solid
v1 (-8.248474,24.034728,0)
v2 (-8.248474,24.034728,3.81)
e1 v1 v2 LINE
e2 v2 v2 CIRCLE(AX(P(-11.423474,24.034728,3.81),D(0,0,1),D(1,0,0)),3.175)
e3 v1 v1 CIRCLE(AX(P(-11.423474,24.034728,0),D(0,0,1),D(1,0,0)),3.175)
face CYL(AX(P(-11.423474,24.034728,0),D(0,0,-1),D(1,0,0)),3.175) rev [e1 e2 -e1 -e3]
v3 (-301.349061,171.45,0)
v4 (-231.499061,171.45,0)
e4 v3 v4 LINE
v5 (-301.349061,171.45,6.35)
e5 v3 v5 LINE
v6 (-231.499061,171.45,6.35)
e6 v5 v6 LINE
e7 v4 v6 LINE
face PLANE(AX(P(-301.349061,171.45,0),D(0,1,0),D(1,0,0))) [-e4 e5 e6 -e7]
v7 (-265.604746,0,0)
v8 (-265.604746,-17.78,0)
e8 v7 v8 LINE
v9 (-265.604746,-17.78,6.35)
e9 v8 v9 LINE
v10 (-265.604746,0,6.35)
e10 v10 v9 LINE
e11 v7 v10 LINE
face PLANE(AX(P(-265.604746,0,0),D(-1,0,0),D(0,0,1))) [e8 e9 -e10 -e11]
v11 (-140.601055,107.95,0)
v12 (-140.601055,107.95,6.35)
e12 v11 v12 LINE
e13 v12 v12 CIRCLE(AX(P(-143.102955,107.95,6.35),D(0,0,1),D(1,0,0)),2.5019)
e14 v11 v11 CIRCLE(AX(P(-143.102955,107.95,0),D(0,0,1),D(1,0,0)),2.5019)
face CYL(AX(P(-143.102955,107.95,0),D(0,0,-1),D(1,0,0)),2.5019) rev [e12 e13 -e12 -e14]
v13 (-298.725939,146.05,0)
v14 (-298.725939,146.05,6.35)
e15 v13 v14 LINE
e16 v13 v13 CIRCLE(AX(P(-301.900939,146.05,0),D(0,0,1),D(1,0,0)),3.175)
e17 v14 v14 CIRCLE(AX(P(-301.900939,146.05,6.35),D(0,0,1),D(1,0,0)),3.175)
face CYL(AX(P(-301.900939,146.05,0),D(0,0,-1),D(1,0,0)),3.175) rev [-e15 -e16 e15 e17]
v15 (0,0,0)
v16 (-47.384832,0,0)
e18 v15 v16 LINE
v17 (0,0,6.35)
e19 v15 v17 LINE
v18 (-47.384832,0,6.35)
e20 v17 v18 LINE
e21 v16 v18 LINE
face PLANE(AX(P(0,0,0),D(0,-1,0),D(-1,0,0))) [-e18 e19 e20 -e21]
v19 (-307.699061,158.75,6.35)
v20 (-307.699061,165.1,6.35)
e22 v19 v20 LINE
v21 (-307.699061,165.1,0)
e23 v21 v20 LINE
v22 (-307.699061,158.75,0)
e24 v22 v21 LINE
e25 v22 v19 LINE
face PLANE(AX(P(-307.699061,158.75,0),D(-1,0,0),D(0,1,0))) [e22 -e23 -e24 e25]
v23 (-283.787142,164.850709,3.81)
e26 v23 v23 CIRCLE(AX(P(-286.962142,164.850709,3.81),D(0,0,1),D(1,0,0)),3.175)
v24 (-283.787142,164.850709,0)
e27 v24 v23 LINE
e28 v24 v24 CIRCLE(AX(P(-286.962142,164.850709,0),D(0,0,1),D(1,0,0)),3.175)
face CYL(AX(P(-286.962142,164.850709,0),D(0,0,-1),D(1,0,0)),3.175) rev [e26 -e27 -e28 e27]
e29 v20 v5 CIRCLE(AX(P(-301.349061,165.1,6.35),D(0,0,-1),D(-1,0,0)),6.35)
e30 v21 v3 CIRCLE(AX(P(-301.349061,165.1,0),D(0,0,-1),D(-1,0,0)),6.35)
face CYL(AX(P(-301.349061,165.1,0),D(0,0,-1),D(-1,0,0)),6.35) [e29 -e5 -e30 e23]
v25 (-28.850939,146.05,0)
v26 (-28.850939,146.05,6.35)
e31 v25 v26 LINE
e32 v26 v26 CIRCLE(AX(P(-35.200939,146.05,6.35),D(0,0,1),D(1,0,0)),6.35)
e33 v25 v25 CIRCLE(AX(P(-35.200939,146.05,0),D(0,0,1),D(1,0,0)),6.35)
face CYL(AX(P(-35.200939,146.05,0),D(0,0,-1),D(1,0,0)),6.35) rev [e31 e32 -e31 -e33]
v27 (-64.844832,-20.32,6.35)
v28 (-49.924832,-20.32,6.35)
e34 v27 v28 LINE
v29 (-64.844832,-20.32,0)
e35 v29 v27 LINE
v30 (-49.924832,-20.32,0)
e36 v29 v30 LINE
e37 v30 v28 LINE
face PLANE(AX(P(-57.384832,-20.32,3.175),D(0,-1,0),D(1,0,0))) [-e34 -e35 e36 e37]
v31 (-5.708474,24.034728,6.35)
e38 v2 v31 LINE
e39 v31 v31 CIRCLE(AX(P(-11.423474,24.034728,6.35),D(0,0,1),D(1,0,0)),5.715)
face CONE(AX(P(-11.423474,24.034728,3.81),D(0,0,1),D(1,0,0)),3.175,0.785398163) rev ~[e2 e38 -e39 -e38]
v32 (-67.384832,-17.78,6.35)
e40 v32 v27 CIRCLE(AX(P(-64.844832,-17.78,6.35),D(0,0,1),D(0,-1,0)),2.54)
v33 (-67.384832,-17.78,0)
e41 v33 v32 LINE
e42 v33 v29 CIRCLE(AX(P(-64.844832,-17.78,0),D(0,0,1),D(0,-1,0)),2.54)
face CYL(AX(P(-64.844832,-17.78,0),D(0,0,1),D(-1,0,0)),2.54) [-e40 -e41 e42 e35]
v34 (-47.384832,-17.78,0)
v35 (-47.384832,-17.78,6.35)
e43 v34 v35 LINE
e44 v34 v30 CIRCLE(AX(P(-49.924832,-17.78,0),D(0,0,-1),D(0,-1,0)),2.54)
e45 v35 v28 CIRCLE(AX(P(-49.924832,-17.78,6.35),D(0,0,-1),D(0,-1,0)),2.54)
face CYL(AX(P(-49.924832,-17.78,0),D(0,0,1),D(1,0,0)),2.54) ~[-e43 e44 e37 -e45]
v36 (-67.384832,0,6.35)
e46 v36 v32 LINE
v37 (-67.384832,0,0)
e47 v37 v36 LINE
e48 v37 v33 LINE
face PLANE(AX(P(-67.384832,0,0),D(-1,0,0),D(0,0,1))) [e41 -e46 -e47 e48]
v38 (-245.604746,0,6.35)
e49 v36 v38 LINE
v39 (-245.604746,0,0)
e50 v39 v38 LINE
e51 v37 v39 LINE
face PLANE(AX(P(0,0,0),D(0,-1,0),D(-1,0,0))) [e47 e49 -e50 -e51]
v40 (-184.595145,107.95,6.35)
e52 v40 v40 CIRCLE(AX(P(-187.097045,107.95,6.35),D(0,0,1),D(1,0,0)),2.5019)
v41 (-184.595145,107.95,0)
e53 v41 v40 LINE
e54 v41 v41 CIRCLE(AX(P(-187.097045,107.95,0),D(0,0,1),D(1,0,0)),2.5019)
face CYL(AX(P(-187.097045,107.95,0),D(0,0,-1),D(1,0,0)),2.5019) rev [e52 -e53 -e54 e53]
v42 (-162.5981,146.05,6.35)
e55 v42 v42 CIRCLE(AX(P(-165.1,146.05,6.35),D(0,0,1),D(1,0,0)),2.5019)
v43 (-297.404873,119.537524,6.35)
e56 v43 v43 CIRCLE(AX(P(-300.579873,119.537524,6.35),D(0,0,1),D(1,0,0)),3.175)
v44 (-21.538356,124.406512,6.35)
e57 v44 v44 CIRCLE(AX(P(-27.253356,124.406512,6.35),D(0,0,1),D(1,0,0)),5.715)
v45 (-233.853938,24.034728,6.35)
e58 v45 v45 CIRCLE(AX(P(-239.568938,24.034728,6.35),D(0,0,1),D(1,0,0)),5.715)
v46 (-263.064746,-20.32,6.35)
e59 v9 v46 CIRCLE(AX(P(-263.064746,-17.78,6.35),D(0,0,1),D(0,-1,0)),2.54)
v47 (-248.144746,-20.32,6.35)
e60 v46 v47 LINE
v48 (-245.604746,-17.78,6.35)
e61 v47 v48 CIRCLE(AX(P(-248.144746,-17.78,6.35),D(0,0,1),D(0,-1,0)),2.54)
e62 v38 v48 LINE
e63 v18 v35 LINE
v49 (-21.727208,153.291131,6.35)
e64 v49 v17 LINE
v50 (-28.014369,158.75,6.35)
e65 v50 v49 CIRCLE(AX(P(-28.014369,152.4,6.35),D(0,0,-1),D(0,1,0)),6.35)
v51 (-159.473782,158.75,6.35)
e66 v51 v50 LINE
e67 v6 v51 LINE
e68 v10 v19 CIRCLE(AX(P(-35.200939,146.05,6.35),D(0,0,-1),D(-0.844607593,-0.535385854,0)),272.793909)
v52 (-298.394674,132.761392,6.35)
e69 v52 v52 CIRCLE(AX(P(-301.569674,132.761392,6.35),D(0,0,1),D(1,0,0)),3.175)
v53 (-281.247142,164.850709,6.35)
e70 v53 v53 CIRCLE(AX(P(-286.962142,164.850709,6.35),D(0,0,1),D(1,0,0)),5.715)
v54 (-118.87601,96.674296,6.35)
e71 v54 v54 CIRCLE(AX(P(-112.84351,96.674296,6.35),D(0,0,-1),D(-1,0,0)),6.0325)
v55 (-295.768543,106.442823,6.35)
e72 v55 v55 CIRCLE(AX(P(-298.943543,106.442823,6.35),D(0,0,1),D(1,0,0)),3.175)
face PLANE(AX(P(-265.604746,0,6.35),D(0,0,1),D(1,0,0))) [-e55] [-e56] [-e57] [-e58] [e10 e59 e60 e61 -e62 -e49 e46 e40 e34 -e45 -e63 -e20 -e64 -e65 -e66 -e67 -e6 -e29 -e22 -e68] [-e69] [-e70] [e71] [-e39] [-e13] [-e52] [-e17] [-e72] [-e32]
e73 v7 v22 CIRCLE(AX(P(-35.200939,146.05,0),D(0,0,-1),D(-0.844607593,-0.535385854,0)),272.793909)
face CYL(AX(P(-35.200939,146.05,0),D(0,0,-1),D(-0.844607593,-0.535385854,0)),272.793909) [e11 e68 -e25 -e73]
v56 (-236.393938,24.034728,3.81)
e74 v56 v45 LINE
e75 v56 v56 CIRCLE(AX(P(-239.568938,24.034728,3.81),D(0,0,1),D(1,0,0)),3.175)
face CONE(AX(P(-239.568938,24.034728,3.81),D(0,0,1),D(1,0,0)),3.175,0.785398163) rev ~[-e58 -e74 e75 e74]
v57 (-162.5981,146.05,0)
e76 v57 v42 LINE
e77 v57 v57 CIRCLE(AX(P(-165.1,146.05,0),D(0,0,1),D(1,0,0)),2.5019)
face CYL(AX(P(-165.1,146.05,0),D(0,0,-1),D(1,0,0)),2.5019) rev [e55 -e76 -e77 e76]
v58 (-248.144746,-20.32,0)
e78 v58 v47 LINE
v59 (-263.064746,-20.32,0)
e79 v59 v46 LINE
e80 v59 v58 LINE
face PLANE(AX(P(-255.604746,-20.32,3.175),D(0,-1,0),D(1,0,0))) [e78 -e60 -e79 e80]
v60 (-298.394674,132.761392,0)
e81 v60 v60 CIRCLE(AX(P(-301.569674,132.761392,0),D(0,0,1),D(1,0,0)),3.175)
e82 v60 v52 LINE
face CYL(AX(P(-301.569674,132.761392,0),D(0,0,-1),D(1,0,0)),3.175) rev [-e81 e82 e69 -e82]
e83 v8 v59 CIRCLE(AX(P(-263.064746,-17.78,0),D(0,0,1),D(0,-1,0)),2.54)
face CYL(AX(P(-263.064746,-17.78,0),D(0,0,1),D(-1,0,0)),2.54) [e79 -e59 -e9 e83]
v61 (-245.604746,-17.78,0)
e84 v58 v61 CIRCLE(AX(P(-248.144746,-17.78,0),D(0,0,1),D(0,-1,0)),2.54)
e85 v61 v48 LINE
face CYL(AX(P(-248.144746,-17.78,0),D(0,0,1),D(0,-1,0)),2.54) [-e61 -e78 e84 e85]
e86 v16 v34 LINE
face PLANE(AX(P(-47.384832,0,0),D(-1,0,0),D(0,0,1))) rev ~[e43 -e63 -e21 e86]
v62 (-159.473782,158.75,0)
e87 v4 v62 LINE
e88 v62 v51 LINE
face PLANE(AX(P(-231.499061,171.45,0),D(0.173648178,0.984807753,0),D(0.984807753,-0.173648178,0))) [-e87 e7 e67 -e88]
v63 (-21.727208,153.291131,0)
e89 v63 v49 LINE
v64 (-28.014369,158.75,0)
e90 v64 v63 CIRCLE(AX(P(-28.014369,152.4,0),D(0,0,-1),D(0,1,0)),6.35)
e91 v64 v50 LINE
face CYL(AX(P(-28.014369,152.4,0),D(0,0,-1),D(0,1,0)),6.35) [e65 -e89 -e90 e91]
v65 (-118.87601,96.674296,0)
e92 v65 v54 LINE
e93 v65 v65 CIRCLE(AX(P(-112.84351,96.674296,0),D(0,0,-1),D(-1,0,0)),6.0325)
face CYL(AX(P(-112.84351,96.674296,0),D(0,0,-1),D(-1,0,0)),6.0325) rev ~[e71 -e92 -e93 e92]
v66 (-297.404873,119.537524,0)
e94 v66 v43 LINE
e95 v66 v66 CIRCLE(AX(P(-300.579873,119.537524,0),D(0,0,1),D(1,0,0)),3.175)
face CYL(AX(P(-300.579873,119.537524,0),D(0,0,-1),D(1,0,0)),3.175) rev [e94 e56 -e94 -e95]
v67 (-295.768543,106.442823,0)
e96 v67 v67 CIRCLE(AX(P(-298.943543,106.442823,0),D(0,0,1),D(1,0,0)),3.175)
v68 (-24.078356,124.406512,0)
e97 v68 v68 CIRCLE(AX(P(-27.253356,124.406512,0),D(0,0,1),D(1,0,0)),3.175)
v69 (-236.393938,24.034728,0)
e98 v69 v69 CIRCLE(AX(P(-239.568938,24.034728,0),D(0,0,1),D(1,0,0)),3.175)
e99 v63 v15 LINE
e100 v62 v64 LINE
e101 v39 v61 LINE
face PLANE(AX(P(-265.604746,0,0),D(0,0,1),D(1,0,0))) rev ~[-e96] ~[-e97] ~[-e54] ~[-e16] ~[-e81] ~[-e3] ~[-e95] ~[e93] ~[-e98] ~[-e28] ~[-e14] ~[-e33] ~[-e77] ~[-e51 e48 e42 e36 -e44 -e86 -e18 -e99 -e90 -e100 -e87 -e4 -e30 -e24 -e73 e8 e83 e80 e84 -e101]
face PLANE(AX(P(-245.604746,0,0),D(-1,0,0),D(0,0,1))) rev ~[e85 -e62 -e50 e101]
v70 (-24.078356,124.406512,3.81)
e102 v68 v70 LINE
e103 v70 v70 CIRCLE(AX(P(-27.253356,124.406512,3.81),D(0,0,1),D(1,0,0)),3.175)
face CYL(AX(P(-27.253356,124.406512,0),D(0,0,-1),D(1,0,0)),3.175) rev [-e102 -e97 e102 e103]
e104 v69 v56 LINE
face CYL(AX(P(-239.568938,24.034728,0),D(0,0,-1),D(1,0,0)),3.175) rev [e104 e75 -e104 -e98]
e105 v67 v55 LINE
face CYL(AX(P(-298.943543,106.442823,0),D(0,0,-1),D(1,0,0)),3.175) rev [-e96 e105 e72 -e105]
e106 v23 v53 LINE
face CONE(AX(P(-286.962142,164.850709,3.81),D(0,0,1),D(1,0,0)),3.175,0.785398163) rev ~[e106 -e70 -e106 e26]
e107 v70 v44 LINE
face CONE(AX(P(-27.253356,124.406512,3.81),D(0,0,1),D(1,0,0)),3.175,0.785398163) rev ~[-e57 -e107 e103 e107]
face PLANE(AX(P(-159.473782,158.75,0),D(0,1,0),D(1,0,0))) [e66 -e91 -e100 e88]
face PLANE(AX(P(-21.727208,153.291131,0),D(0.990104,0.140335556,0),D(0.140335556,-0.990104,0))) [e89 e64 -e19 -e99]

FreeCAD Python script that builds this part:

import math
import FreeCAD as App
import Part
import Sketcher
Q = App.Units.Quantity


def edges_at(feature, points):
    """Names of the edges that pass closest to the given points."""
    edges = feature.Shape.Edges
    near = lambda p: min(range(len(edges)), key=lambda i: edges[i].distToShape(Part.Vertex(*p))[0])
    return sorted({f"Edge{near(p) + 1}" for p in points})


def add_polygon(sketch, points):
    """Adds a closed chain of lines whose ends are joined by coincident constraints."""
    first, n = sketch.GeometryCount, len(points)
    for a, b in zip(points, points[1:] + points[:1]):
        sketch.addGeometry(Part.LineSegment(App.Vector(*a, 0), App.Vector(*b, 0)), False)
    for i in range(n):
        sketch.addConstraint(Sketcher.Constraint("Coincident", first + i, 2, first + (i + 1) % n, 1))

doc = App.newDocument("Part")
body = doc.addObject("PartDesign::Body", "Body")

# Sketch on XY plane
sketch1 = doc.addObject("Sketcher::SketchObject", "Sketch")
body.addObject(sketch1)
sketch1.AttachmentSupport = (doc.XY_Plane, [""])
sketch1.MapMode = "FlatFace"
sketch1.addGeometry(Part.LineSegment(App.Vector(-265.6, 0, 0), App.Vector(0, 0, 0)), False)
sketch1.addGeometry(Part.LineSegment(App.Vector(0, 0, 0), App.Vector(-21.7, 153.3, 0)), False)
sketch1.addGeometry(Part.ArcOfCircle(Part.Circle(App.Vector(-28, 152.4, 0), App.Vector(0, 0, 1), 6.4), math.radians(8), math.radians(90)), False)
sketch1.addGeometry(Part.LineSegment(App.Vector(-28, 158.8, 0), App.Vector(-159.5, 158.8, 0)), False)
sketch1.addGeometry(Part.LineSegment(App.Vector(-159.5, 158.8, 0), App.Vector(-231.5, 171.4, 0)), False)
sketch1.addGeometry(Part.LineSegment(App.Vector(-231.5, 171.4, 0), App.Vector(-301.3, 171.4, 0)), False)
sketch1.addGeometry(Part.ArcOfCircle(Part.Circle(App.Vector(-301.3, 165.1, 0), App.Vector(0, 0, 1), 6.3), math.radians(90), math.radians(180)), False)
sketch1.addGeometry(Part.LineSegment(App.Vector(-307.7, 165.1, 0), App.Vector(-307.7, 158.8, 0)), False)
sketch1.addGeometry(Part.ArcOfCircle(Part.Circle(App.Vector(-35.2, 146.1, 0), App.Vector(0, 0, 1), 272.8), math.radians(177), math.radians(212)), False)
sketch1.addGeometry(Part.Circle(App.Vector(-11.4, 24, 0), App.Vector(0, 0, 1), 3.2), False)
sketch1.addGeometry(Part.Circle(App.Vector(-239.6, 24, 0), App.Vector(0, 0, 1), 3.2), False)
sketch1.addGeometry(Part.Circle(App.Vector(-27.3, 124.4, 0), App.Vector(0, 0, 1), 3.2), False)
sketch1.addGeometry(Part.Circle(App.Vector(-143.1, 108, 0), App.Vector(0, 0, 1), 2.5), False)
sketch1.addGeometry(Part.Circle(App.Vector(-35.2, 146.1, 0), App.Vector(0, 0, 1), 6.3), False)
sketch1.addGeometry(Part.Circle(App.Vector(-187.1, 108, 0), App.Vector(0, 0, 1), 2.5), False)
sketch1.addGeometry(Part.Circle(App.Vector(-298.9, 106.4, 0), App.Vector(0, 0, 1), 3.2), False)
sketch1.addGeometry(Part.Circle(App.Vector(-300.6, 119.5, 0), App.Vector(0, 0, 1), 3.2), False)
sketch1.addGeometry(Part.Circle(App.Vector(-165.1, 146.1, 0), App.Vector(0, 0, 1), 2.5), False)
sketch1.addGeometry(Part.Circle(App.Vector(-301.6, 132.8, 0), App.Vector(0, 0, 1), 3.2), False)
sketch1.addGeometry(Part.Circle(App.Vector(-301.9, 146.1, 0), App.Vector(0, 0, 1), 3.2), False)
sketch1.addGeometry(Part.Circle(App.Vector(-287, 164.9, 0), App.Vector(0, 0, 1), 3.2), False)
sketch1.addConstraint(Sketcher.Constraint("Coincident", 0, 2, 1, 1))
sketch1.addConstraint(Sketcher.Constraint("Tangent", 1, 2, 2, 1))
sketch1.addConstraint(Sketcher.Constraint("Tangent", 2, 2, 3, 1))
sketch1.addConstraint(Sketcher.Constraint("Coincident", 3, 2, 4, 1))
sketch1.addConstraint(Sketcher.Constraint("Coincident", 4, 2, 5, 1))
sketch1.addConstraint(Sketcher.Constraint("Tangent", 5, 2, 6, 1))
sketch1.addConstraint(Sketcher.Constraint("Tangent", 6, 2, 7, 1))
sketch1.addConstraint(Sketcher.Constraint("Coincident", 7, 2, 8, 1))
sketch1.addConstraint(Sketcher.Constraint("Coincident", 8, 2, 0, 1))
sketch1.addConstraint(Sketcher.Constraint("Horizontal", 0))
sketch1.addConstraint(Sketcher.Constraint("Horizontal", 3))
sketch1.addConstraint(Sketcher.Constraint("Horizontal", 5))
sketch1.addConstraint(Sketcher.Constraint("Vertical", 7))
sketch1.addConstraint(Sketcher.Constraint("Coincident", 0, 2, -1, 1))
sketch1.addConstraint(Sketcher.Constraint("Coincident", 13, 3, 8, 3))
sketch1.addConstraint(Sketcher.Constraint("Equal", 2, 6))
sketch1.addConstraint(Sketcher.Constraint("Equal", 9, 10))
sketch1.addConstraint(Sketcher.Constraint("Equal", 10, 11))
sketch1.addConstraint(Sketcher.Constraint("Equal", 6, 13))
sketch1.addConstraint(Sketcher.Constraint("Equal", 12, 14))
sketch1.addConstraint(Sketcher.Constraint("Equal", 11, 15))
sketch1.addConstraint(Sketcher.Constraint("Equal", 15, 16))
sketch1.addConstraint(Sketcher.Constraint("Equal", 14, 17))
sketch1.addConstraint(Sketcher.Constraint("Equal", 16, 18))
sketch1.addConstraint(Sketcher.Constraint("Equal", 18, 19))
sketch1.addConstraint(Sketcher.Constraint("Equal", 19, 20))
sketch1.addConstraint(Sketcher.Constraint("Horizontal", 9, 3, 10, 3))
sketch1.addConstraint(Sketcher.Constraint("Horizontal", 12, 3, 14, 3))
sketch1.addConstraint(Sketcher.Constraint("Horizontal", 13, 3, 17, 3))
sketch1.addConstraint(Sketcher.Constraint("Horizontal", 17, 3, 19, 3))
sketch1.addConstraint(Sketcher.Constraint("Horizontal", 3, 2, 7, 2))
sketch1.addConstraint(Sketcher.Constraint("Diameter", 13, Q("0.5 in")))
sketch1.addConstraint(Sketcher.Constraint("Diameter", 9, Q("0.25 in")))
sketch1.addConstraint(Sketcher.Constraint("Diameter", 12, Q("0.197 in")))
sketch1.addConstraint(Sketcher.Constraint("DistanceY", -1, 1, 2, 3, Q("6 in")))
sketch1.addConstraint(Sketcher.Constraint("Angle", 4, Q("170 deg")))
sketch1.addConstraint(Sketcher.Constraint("DistanceY", 12, 3, 3, 2, Q("2 in")))
sketch1.addConstraint(Sketcher.Constraint("DistanceY", 17, 3, 4, 2, Q("1 in")))
sketch1.addConstraint(Sketcher.Constraint("DistanceX", 5, 2, 5, 1, Q("2.75 in")))
sketch1.addConstraint(Sketcher.Constraint("DistanceY", 7, 2, 7, 1, Q("0.25 in")))
sketch1.addConstraint(Sketcher.Constraint("DistanceX", 17, 3, -1, 1, Q("6.5 in")))
sketch1.addConstraint(Sketcher.Constraint("Radius", 8, Q("272.793909 mm")))
sketch1.addConstraint(Sketcher.Constraint("DistanceX", 10, 3, 8, 3, Q("204.367999 mm")))
sketch1.addConstraint(Sketcher.Constraint("DistanceX", 12, 3, 11, 3, Q("115.849599 mm")))
sketch1.addConstraint(Sketcher.Constraint("DistanceX", 15, 3, 14, 3, Q("111.846498 mm")))
sketch1.addConstraint(Sketcher.Constraint("DistanceY", 15, 3, 16, 3, Q("13.094701 mm")))
sketch1.addConstraint(Sketcher.Constraint("DistanceX", 18, 3, 16, 3, Q("0.989801 mm")))
sketch1.addConstraint(Sketcher.Constraint("DistanceX", 15, 3, 20, 3, Q("11.981401 mm")))
sketch1.addConstraint(Sketcher.Constraint("DistanceX", 8, 2, 14, 3, Q("78.5077 mm")))
sketch1.addConstraint(Sketcher.Constraint("Distance", 1, Q("154.823262 mm")))
sketch1.addConstraint(Sketcher.Constraint("DistanceX", 0, 1, 0, 2, Q("265.604746 mm")))
sketch1.addConstraint(Sketcher.Constraint("DistanceY", -1, 1, 9, 3, Q("24.034728 mm")))
sketch1.addConstraint(Sketcher.Constraint("DistanceY", -1, 1, 11, 3, Q("124.406512 mm")))
sketch1.addConstraint(Sketcher.Constraint("DistanceY", -1, 1, 18, 3, Q("132.761392 mm")))
sketch1.addConstraint(Sketcher.Constraint("DistanceX", 19, 3, -1, 1, Q("301.900939 mm")))
sketch1.addConstraint(Sketcher.Constraint("DistanceY", -1, 1, 20, 3, Q("164.850709 mm")))
sketch1.addConstraint(Sketcher.Constraint("DistanceX", 10, 3, 11, 3, Q("212.315581 mm")))
sketch1.addConstraint(Sketcher.Constraint("DistanceX", 12, 3, 9, 3, Q("131.679481 mm")))
sketch1.addConstraint(Sketcher.Constraint("DistanceX", 16, 3, 15, 3, Q("1.636329 mm")))
sketch1.addConstraint(Sketcher.Constraint("DistanceY", 15, 3, 18, 3, Q("26.318569 mm")))
pad1 = doc.addObject("PartDesign::Pad", "Pad")
body.addObject(pad1)
pad1.Profile = sketch1
pad1.Length = Q("0.25 in")
doc.recompute()

chamfer = doc.addObject("PartDesign::Chamfer", "Chamfer")
body.addObject(chamfer)
chamfer.Base = (pad1, edges_at(pad1, [
    (-14.598, 24.035, 6.35),
    (-30.428, 124.407, 6.35),
    (-242.744, 24.035, 6.35),
    (-290.137, 164.851, 6.35),
]))
chamfer.Size = Q("0.1 in")

# Sketch on XY plane
sketch2 = doc.addObject("Sketcher::SketchObject", "Sketch001")
body.addObject(sketch2)
sketch2.AttachmentSupport = (doc.XY_Plane, [""])
sketch2.MapMode = "FlatFace"
sketch2.addGeometry(Part.Circle(App.Vector(-113, 97, 0), App.Vector(0, 0, 1), 6), False)
sketch2.addConstraint(Sketcher.Constraint("Diameter", 0, Q("0.475 in")))
sketch2.addConstraint(Sketcher.Constraint("DistanceX", 0, 3, -1, 1, Q("112.84351 mm")))
sketch2.addConstraint(Sketcher.Constraint("DistanceY", -1, 1, 0, 3, Q("96.674296 mm")))
pocket1 = doc.addObject("PartDesign::Pocket", "Pocket")
body.addObject(pocket1)
pocket1.Profile = sketch2
pocket1.Length = Q("1.71 in")
pocket1.Reversed = True

# Sketch on XZ plane
sketch3 = doc.addObject("Sketcher::SketchObject", "Sketch002")
body.addObject(sketch3)
sketch3.AttachmentSupport = (doc.XZ_Plane, [""])
sketch3.MapMode = "FlatFace"
add_polygon(sketch3, [(-266, 6), (-266, 0), (-246, 0), (-246, 6)])  # lines 0-3
add_polygon(sketch3, [(-67, 6), (-67, 0), (-47, 0), (-47, 6)])  # lines 4-7
sketch3.addConstraint(Sketcher.Constraint("Vertical", 0))
sketch3.addConstraint(Sketcher.Constraint("Horizontal", 1))
sketch3.addConstraint(Sketcher.Constraint("Vertical", 2))
sketch3.addConstraint(Sketcher.Constraint("Horizontal", 3))
sketch3.addConstraint(Sketcher.Constraint("Vertical", 4))
sketch3.addConstraint(Sketcher.Constraint("Horizontal", 5))
sketch3.addConstraint(Sketcher.Constraint("Vertical", 6))
sketch3.addConstraint(Sketcher.Constraint("Horizontal", 7))
sketch3.addConstraint(Sketcher.Constraint("PointOnObject", 0, 2, -1))
sketch3.addConstraint(Sketcher.Constraint("PointOnObject", 4, 2, -1))
sketch3.addConstraint(Sketcher.Constraint("Horizontal", 3, 2, 6, 2))
sketch3.addConstraint(Sketcher.Constraint("Equal", 3, 5))
sketch3.addConstraint(Sketcher.Constraint("DistanceY", 0, 2, 0, 1, Q("0.25 in")))
sketch3.addConstraint(Sketcher.Constraint("DistanceX", 1, 1, 1, 2, Q("20 mm")))
sketch3.addConstraint(Sketcher.Constraint("DistanceX", 0, 2, -1, 1, Q("265.604746 mm")))
sketch3.addConstraint(Sketcher.Constraint("DistanceX", 4, 2, -1, 1, Q("67.384832 mm")))
pad2 = doc.addObject("PartDesign::Pad", "Pad001")
body.addObject(pad2)
pad2.Profile = sketch3
pad2.Length = Q("0.8 in")
doc.recompute()

fillet = doc.addObject("PartDesign::Fillet", "Fillet")
body.addObject(fillet)
fillet.Base = (pad2, edges_at(pad2, [
    (-265.605, -20.32, 3.175),
    (-245.605, -20.32, 3.175),
    (-47.385, -20.32, 3.175),
    (-67.385, -20.32, 3.175),
]))
fillet.Radius = Q("0.1 in")

doc.recompute()
